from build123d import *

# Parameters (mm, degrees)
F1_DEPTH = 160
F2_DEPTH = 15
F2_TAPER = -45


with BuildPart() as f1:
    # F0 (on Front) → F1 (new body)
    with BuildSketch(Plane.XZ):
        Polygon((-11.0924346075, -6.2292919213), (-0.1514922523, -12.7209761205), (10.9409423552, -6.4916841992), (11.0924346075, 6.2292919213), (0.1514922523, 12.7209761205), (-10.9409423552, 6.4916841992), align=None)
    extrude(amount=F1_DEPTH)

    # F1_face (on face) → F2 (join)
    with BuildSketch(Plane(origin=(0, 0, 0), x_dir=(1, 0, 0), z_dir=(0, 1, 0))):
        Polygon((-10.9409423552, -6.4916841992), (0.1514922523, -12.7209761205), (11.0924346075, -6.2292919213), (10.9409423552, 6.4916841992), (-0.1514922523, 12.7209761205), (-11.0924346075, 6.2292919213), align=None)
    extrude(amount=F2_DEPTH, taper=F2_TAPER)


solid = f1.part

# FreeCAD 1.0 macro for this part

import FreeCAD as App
import Part
import Sketcher

V = App.Vector

doc = App.newDocument("Part")
body = doc.addObject("PartDesign::Body", "Body")

sketch1 = body.newObject("Sketcher::SketchObject", "Sketch")
sketch1.AttachmentSupport = (doc.getObject("XZ_Plane"), [""])
sketch1.MapMode = "FlatFace"
sketch1.addGeometry([
    Part.LineSegment(V(-11, -6, 0), V(0, -13, 0)),
    Part.LineSegment(V(0, -13, 0), V(11, -6, 0)),
    Part.LineSegment(V(11, -6, 0), V(11, 6, 0)),
    Part.LineSegment(V(11, 6, 0), V(0, 13, 0)),
    Part.LineSegment(V(0, 13, 0), V(-11, 6, 0)),
    Part.LineSegment(V(-11, 6, 0), V(-11, -6, 0)),
], False)
sketch1.addConstraint([
    Sketcher.Constraint("Coincident", 0, 2, 1, 1),
    Sketcher.Constraint("Coincident", 1, 2, 2, 1),
    Sketcher.Constraint("Coincident", 2, 2, 3, 1),
    Sketcher.Constraint("Coincident", 3, 2, 4, 1),
    Sketcher.Constraint("Coincident", 4, 2, 5, 1),
    Sketcher.Constraint("Coincident", 5, 2, 0, 1),
    Sketcher.Constraint("Symmetric", 0, 2, 3, 2, -1, 1),
    Sketcher.Constraint("Symmetric", 1, 2, 4, 2, -1, 1),
    Sketcher.Constraint("Symmetric", 2, 2, 5, 2, -1, 1),
    Sketcher.Constraint("Equal", 0, 1),
    Sketcher.Constraint("Equal", 1, 2),
    Sketcher.Constraint("Distance", 0, 12.721878),
    Sketcher.Constraint("DistanceY", -1, 1, 2, 2, 6.229292),
    Sketcher.Constraint("DistanceY", 0, 2, 1, 2, 6.229292),
    Sketcher.Constraint("DistanceY", 0, 2, 2, 2, 18.950268),
])
pad1 = body.newObject("PartDesign::Pad", "Pad")
pad1.Profile = sketch1
pad1.Length = 160

sketch2 = body.newObject("Sketcher::SketchObject", "Sketch001")
sketch2.AttachmentSupport = (doc.getObject("XZ_Plane"), [""])
sketch2.MapMode = "FlatFace"
sketch2.addGeometry([
    Part.LineSegment(V(-11, 6, 0), V(0, 13, 0)),
    Part.LineSegment(V(0, 13, 0), V(11, 6, 0)),
    Part.LineSegment(V(11, 6, 0), V(11, -6, 0)),
    Part.LineSegment(V(11, -6, 0), V(0, -13, 0)),
    Part.LineSegment(V(0, -13, 0), V(-11, -6, 0)),
    Part.LineSegment(V(-11, -6, 0), V(-11, 6, 0)),
], False)
sketch2.addConstraint([
    Sketcher.Constraint("Coincident", 0, 2, 1, 1),
    Sketcher.Constraint("Coincident", 1, 2, 2, 1),
    Sketcher.Constraint("Coincident", 2, 2, 3, 1),
    Sketcher.Constraint("Coincident", 3, 2, 4, 1),
    Sketcher.Constraint("Coincident", 4, 2, 5, 1),
    Sketcher.Constraint("Coincident", 5, 2, 0, 1),
    Sketcher.Constraint("Symmetric", 0, 2, 3, 2, -1, 1),
    Sketcher.Constraint("Symmetric", 1, 2, 4, 2, -1, 1),
    Sketcher.Constraint("Symmetric", 2, 2, 5, 2, -1, 1),
    Sketcher.Constraint("Equal", 0, 1),
    Sketcher.Constraint("Equal", 1, 2),
    Sketcher.Constraint("Distance", 0, 12.721878),
    Sketcher.Constraint("DistanceY", -1, 1, 1, 2, 6.229292),
    Sketcher.Constraint("DistanceX", 0, 2, 2, 2, 10.78945),
    Sketcher.Constraint("DistanceY", 2, 2, 0, 2, 19.21266),
])
pad2 = body.newObject("PartDesign::Pad", "Pad001")
pad2.Profile = sketch2
pad2.Length = 15
pad2.Reversed = True
pad2.TaperAngle = 45

doc.recompute()
